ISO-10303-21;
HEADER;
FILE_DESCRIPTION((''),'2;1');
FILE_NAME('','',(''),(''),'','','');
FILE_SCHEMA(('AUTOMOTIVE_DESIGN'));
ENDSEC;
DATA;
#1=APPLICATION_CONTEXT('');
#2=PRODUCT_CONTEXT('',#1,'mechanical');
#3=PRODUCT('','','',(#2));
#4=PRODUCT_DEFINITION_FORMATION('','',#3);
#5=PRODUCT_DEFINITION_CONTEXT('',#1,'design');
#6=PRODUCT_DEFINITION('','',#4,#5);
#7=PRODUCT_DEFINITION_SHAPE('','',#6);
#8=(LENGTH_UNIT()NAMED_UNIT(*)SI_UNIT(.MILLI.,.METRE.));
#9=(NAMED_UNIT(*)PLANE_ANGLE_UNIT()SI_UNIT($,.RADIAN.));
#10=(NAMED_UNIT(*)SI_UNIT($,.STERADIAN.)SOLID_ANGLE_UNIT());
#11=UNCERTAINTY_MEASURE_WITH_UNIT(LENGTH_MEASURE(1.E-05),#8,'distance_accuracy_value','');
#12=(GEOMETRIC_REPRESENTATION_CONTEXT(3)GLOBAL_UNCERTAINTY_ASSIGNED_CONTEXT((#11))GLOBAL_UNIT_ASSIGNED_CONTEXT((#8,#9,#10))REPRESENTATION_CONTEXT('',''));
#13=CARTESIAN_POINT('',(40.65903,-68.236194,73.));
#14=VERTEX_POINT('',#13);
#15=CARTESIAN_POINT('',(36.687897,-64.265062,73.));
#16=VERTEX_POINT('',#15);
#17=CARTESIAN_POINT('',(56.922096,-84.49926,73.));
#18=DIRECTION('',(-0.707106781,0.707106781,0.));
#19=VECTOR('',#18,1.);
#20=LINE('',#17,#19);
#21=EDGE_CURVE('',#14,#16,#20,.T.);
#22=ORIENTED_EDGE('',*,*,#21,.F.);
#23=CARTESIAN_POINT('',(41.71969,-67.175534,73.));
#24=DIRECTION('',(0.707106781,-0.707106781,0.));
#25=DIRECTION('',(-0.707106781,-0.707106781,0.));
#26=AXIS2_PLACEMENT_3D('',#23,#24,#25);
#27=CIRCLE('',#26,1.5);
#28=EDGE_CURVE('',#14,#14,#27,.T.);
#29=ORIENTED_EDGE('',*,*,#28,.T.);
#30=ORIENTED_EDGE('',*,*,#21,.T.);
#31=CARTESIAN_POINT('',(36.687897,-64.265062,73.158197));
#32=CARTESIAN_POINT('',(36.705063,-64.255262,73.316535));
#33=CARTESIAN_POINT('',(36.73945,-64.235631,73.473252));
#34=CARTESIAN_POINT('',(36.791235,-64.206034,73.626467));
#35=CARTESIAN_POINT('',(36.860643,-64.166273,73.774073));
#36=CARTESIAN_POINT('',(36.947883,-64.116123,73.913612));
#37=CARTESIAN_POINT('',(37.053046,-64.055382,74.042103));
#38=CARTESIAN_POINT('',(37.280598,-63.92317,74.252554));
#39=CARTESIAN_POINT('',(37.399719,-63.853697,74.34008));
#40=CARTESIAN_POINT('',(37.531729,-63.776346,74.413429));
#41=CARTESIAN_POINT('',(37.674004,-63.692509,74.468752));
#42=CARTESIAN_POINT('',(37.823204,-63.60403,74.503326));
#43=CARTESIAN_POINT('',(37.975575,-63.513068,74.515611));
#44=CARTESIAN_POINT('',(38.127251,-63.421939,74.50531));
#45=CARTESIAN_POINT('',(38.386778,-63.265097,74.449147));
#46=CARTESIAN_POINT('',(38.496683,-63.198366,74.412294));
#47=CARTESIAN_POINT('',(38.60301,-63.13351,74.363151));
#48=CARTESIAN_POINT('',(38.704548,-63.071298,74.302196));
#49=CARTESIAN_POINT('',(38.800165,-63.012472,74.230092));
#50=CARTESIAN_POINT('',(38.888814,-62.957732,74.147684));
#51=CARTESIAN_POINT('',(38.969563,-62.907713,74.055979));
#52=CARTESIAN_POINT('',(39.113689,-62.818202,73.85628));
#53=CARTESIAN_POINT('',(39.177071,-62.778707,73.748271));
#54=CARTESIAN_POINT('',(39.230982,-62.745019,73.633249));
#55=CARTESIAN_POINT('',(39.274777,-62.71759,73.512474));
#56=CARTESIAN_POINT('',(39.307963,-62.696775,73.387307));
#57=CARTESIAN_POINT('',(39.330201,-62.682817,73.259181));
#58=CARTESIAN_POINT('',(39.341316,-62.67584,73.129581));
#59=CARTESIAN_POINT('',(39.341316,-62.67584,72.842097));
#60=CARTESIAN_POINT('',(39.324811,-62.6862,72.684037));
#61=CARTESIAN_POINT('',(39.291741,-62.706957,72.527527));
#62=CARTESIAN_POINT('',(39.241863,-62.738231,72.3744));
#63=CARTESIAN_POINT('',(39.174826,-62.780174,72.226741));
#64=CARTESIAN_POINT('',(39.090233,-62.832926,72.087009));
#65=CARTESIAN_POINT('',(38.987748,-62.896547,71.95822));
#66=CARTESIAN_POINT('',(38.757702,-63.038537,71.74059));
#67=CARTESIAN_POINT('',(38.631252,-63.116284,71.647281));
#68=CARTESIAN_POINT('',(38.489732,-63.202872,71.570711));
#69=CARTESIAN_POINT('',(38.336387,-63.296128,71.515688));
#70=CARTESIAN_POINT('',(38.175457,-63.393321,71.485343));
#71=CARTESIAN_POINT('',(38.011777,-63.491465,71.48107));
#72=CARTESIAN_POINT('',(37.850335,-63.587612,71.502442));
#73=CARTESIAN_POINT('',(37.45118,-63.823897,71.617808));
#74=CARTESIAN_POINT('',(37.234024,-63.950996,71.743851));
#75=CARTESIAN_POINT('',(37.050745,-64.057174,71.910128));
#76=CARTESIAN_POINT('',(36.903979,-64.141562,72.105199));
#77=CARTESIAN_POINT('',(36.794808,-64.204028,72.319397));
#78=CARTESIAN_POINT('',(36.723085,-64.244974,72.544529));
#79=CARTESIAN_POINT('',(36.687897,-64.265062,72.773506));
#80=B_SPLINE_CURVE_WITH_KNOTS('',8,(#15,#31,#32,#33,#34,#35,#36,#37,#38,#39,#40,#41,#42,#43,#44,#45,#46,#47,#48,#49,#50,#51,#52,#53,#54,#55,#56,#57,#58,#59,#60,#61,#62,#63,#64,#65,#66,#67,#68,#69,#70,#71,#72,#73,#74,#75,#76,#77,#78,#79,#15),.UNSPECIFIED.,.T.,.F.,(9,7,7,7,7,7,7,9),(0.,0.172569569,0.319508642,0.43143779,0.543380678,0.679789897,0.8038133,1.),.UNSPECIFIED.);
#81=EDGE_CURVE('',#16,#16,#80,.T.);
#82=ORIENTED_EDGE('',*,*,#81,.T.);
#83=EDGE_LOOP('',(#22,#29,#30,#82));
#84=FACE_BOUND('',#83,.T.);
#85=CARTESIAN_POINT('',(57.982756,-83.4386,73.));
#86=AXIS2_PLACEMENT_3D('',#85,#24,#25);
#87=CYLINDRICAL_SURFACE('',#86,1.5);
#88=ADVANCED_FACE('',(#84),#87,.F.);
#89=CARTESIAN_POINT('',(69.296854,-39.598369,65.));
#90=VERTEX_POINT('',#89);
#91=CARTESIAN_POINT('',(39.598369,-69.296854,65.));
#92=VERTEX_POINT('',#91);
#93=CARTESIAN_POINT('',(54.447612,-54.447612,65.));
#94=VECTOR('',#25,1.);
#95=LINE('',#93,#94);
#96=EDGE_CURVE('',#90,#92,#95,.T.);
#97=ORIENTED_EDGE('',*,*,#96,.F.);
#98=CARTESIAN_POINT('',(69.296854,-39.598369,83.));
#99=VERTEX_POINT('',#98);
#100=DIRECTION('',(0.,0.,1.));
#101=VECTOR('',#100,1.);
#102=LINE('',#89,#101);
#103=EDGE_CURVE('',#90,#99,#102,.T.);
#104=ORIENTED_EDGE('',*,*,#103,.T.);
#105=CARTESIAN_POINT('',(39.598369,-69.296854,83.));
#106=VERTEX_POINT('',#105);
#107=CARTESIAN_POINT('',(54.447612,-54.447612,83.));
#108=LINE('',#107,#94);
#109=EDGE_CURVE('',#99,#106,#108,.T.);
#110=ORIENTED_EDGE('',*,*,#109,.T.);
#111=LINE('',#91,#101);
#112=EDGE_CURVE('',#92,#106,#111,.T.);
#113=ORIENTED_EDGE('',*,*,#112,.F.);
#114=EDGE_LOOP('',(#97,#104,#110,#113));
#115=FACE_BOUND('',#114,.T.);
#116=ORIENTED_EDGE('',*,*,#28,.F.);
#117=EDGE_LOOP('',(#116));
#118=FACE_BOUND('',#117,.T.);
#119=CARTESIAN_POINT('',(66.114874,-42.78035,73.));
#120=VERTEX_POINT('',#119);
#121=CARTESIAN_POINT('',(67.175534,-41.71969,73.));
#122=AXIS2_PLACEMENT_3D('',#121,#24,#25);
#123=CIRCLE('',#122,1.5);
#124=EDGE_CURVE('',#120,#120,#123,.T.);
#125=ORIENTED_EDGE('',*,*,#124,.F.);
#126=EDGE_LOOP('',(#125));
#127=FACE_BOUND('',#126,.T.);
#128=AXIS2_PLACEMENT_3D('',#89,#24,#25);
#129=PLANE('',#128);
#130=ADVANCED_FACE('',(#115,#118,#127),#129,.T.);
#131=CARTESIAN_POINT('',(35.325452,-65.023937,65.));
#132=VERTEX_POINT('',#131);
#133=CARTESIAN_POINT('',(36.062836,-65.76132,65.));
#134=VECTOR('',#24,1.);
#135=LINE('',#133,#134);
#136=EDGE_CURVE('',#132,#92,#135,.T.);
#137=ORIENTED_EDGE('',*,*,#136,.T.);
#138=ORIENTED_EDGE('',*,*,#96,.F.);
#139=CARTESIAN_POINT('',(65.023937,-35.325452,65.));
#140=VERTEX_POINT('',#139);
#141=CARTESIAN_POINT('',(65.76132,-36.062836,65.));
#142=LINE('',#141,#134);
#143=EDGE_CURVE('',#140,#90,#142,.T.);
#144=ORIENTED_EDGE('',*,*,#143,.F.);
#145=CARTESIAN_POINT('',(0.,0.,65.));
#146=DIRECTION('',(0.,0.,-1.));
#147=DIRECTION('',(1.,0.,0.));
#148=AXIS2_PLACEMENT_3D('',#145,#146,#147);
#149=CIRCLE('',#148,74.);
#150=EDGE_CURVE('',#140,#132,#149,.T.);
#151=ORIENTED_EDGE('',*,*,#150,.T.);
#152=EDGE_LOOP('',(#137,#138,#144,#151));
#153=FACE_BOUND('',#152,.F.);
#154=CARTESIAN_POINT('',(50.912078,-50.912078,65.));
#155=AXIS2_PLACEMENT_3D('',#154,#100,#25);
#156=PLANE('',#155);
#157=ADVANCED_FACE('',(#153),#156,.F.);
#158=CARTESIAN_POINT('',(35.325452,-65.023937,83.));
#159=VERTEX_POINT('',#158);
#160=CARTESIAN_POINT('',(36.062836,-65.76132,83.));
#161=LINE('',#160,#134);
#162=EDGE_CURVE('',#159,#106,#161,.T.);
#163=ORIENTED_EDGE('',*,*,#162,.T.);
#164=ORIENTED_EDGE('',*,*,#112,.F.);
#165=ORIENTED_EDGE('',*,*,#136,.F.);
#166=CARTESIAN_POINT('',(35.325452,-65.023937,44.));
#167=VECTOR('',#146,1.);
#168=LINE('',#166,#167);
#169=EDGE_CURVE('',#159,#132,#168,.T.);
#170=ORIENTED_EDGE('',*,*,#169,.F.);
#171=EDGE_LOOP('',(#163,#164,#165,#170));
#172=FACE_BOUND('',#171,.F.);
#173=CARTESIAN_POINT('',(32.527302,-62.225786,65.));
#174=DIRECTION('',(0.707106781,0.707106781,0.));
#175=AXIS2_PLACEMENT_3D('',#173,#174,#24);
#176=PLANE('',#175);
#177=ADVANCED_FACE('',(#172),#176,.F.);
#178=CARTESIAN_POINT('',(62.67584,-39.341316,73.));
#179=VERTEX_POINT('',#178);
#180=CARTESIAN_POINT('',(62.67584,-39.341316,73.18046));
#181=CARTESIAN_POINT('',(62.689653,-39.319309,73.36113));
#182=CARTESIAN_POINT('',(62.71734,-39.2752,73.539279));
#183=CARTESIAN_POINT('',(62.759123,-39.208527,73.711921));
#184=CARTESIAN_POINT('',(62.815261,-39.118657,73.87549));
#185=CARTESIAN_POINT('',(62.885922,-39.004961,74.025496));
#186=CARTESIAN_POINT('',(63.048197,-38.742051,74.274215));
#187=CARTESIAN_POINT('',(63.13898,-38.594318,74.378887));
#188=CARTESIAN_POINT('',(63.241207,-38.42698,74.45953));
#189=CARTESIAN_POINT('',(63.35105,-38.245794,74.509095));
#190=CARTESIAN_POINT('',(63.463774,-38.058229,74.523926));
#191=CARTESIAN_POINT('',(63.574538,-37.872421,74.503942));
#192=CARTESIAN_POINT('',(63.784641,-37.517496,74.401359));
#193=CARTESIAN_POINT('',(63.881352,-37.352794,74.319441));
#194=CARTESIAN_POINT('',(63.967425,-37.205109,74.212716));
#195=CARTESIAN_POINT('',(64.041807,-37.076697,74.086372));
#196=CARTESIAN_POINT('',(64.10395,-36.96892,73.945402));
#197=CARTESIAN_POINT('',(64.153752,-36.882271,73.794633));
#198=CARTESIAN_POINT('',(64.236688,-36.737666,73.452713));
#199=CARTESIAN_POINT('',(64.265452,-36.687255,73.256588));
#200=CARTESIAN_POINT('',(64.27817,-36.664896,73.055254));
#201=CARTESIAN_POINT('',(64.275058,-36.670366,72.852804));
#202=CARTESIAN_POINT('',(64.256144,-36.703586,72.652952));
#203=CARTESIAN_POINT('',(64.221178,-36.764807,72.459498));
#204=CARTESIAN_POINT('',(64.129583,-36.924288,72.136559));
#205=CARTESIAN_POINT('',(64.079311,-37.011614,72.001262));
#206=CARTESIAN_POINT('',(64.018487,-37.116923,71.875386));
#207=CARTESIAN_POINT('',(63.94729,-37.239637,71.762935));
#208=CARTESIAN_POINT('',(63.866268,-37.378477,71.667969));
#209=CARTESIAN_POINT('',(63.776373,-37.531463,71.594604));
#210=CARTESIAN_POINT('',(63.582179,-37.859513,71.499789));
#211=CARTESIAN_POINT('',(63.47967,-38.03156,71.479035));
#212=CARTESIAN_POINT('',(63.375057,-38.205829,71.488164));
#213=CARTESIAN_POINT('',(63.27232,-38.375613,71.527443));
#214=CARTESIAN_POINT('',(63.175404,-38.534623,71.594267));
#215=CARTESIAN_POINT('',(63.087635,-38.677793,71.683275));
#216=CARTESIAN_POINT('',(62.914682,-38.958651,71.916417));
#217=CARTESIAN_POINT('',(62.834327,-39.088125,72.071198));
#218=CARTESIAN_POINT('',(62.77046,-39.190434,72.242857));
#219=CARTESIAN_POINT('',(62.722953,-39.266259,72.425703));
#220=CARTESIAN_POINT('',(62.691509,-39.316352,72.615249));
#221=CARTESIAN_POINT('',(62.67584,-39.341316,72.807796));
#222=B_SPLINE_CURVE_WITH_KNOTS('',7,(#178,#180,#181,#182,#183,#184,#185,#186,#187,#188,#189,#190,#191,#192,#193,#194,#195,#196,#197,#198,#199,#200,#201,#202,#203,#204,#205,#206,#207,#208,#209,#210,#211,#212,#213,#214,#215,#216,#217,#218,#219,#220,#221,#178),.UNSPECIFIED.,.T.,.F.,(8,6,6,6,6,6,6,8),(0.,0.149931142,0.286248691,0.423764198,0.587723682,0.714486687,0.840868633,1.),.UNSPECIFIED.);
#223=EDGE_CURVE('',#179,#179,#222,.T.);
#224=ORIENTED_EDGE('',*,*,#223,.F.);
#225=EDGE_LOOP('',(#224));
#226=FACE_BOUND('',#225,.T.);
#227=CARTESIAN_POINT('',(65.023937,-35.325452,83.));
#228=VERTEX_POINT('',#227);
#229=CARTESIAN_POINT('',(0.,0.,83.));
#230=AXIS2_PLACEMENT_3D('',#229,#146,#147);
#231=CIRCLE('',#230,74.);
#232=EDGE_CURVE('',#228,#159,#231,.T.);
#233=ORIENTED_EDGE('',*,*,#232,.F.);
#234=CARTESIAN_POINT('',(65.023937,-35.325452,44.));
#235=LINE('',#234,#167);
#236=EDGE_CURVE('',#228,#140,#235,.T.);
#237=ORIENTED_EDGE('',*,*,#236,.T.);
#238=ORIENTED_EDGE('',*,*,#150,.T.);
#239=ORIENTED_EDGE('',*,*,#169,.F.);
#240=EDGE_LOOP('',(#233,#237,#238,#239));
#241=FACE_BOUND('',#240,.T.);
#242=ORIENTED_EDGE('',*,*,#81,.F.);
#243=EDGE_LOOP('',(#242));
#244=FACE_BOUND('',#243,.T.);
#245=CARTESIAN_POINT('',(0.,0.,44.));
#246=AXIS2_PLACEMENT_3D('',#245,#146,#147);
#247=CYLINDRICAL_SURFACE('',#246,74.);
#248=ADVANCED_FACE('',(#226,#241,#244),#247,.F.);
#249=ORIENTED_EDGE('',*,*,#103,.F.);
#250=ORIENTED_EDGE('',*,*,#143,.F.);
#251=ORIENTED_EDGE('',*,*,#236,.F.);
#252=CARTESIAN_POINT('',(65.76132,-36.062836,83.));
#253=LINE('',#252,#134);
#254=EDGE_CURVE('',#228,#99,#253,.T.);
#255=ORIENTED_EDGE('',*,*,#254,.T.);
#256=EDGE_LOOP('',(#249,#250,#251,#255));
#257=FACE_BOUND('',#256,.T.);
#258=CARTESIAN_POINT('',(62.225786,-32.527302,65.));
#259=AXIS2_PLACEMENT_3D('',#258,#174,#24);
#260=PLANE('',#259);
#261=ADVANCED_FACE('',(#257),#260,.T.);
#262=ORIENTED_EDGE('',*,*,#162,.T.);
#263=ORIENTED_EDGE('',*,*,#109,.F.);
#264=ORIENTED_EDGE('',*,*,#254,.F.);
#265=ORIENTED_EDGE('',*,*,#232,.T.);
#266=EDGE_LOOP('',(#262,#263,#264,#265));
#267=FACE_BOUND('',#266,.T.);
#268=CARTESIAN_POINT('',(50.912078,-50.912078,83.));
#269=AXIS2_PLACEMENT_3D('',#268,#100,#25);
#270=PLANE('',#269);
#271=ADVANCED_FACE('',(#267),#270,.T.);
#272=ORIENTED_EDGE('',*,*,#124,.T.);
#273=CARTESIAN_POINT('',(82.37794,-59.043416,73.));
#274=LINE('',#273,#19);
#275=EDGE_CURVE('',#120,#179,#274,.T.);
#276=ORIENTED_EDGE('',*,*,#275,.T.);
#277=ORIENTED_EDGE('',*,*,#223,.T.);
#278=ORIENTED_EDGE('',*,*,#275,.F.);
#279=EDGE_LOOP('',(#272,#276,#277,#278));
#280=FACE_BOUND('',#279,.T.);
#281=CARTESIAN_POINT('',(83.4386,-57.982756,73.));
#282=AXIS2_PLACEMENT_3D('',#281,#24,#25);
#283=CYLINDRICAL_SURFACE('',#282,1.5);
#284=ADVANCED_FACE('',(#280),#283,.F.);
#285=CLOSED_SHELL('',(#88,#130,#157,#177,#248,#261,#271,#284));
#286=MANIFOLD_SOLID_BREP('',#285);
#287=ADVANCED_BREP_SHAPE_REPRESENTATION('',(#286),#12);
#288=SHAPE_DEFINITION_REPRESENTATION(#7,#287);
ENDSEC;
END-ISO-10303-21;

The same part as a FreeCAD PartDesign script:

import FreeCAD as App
import Part
import Sketcher
from FreeCAD import Vector


def add_polygon(sketch, points):
    """Adds a closed chain of lines whose ends are joined by coincident constraints."""
    first, n = sketch.GeometryCount, len(points)
    for a, b in zip(points, points[1:] + points[:1]):
        sketch.addGeometry(Part.LineSegment(App.Vector(*a, 0), App.Vector(*b, 0)), False)
    for i in range(n):
        sketch.addConstraint(Sketcher.Constraint("Coincident", first + i, 2, first + (i + 1) % n, 1))

doc = App.newDocument("Part")
body = doc.addObject("PartDesign::Body", "Body")

# Sketch on XY plane
sketch1 = body.newObject("Sketcher::SketchObject", "Sketch")
sketch1.AttachmentSupport = (doc.getObject("XY_Plane"), [""])
sketch1.MapMode = "FlatFace"
sketch1.AttachmentOffset = App.Placement(Vector(0, 0, -80), App.Rotation())
sketch1.addGeometry(Part.Circle(Vector(-24, 73, 0), Vector(0, 0, 1), 1.5), False)
sketch1.addConstraint(Sketcher.Constraint("Diameter", 0, 3.0))
sketch1.addConstraint(Sketcher.Constraint("DistanceX", 0, 3, -1, 1, 24.0))
sketch1.addConstraint(Sketcher.Constraint("DistanceY", -1, 1, 0, 3, 73.0))
pad1 = body.newObject("PartDesign::Pad", "Pad")
pad1.Profile = sketch1
pad1.Length = 60
body2 = doc.addObject("PartDesign::Body", "Body001")

# Sketch on XY plane
sketch2 = body2.newObject("Sketcher::SketchObject", "Sketch001")
sketch2.AttachmentSupport = (doc.getObject("XY_Plane001"), [""])
sketch2.MapMode = "FlatFace"
sketch2.AttachmentOffset = App.Placement(Vector(0, 0, -80), App.Rotation())
sketch2.addGeometry(Part.Circle(Vector(-15, 135, 0), Vector(0, 0, 1), 1.5), False)
sketch2.addConstraint(Sketcher.Constraint("Diameter", 0, 3.0))
sketch2.addConstraint(Sketcher.Constraint("DistanceX", 0, 3, -1, 1, 15.0))
sketch2.addConstraint(Sketcher.Constraint("DistanceY", -1, 1, 0, 3, 135.0))
pad2 = body2.newObject("PartDesign::Pad", "Pad001")
pad2.Profile = sketch2
pad2.Length = 60
body3 = doc.addObject("PartDesign::Body", "Body002")

# Sketch on XY plane
sketch3 = body3.newObject("Sketcher::SketchObject", "Sketch002")
sketch3.AttachmentSupport = (doc.getObject("XY_Plane002"), [""])
sketch3.MapMode = "FlatFace"
sketch3.AttachmentOffset = App.Placement(Vector(0, 0, -80), App.Rotation())
sketch3.addGeometry(Part.Circle(Vector(15, 135, 0), Vector(0, 0, 1), 1.5), False)
sketch3.addConstraint(Sketcher.Constraint("Diameter", 0, 3.0))
sketch3.addConstraint(Sketcher.Constraint("DistanceX", -1, 1, 0, 3, 15.0))
sketch3.addConstraint(Sketcher.Constraint("DistanceY", -1, 1, 0, 3, 135.0))
pad3 = body3.newObject("PartDesign::Pad", "Pad002")
pad3.Profile = sketch3
pad3.Length = 60
body4 = doc.addObject("PartDesign::Body", "Body003")
body4.AllowCompound = True

# Sketch on XY plane
sketch4 = body4.newObject("Sketcher::SketchObject", "Sketch003")
sketch4.AttachmentSupport = (doc.getObject("XY_Plane003"), [""])
sketch4.MapMode = "FlatFace"
sketch4.AttachmentOffset = App.Placement(Vector(0, 0, -80), App.Rotation())
sketch4.addGeometry(Part.Circle(Vector(24, 73, 0), Vector(0, 0, 1), 1.5), False)
sketch4.addConstraint(Sketcher.Constraint("Diameter", 0, 3.0))
sketch4.addConstraint(Sketcher.Constraint("DistanceX", -1, 1, 0, 3, 24.0))
sketch4.addConstraint(Sketcher.Constraint("DistanceY", -1, 1, 0, 3, 73.0))
pad4 = body4.newObject("PartDesign::Pad", "Pad003")
pad4.Profile = sketch4
pad4.Length = 60
doc.recompute()

boolean = body4.newObject("PartDesign::Boolean", "Boolean")
boolean.Type = "Fuse"
boolean.addObjects([body])
doc.recompute()

boolean2 = body4.newObject("PartDesign::Boolean", "Boolean001")
boolean2.Type = "Fuse"
boolean2.addObjects([body2])
doc.recompute()

boolean3 = body4.newObject("PartDesign::Boolean", "Boolean002")
boolean3.Type = "Fuse"
boolean3.addObjects([body3])
body5 = doc.addObject("PartDesign::Body", "Body004")
body5.AllowCompound = True
doc.recompute()

body4.Placement = App.Placement(Vector(0, 0, 100), App.Rotation(Vector(0, 0, 1), 225))
boolean4 = body5.newObject("PartDesign::Boolean", "Boolean003")
boolean4.Type = "Fuse"
boolean4.addObjects([body4])
body6 = doc.addObject("PartDesign::Body", "Body005")

# Sketch on XZ plane
sketch5 = body6.newObject("Sketcher::SketchObject", "Sketch004")
sketch5.AttachmentSupport = (doc.getObject("XZ_Plane005"), [""])
sketch5.MapMode = "FlatFace"
sketch5.AttachmentOffset = App.Placement(Vector(0, 0, -100), App.Rotation())
sketch5.addGeometry(Part.Circle(Vector(18, 72, 0), Vector(0, 0, 1), 1.5), False)
sketch5.addConstraint(Sketcher.Constraint("Diameter", 0, 3.0))
sketch5.addConstraint(Sketcher.Constraint("DistanceX", -1, 1, 0, 3, 18.0))
sketch5.addConstraint(Sketcher.Constraint("DistanceY", -1, 1, 0, 3, 72.0))
pad5 = body6.newObject("PartDesign::Pad", "Pad004")
pad5.Profile = sketch5
pad5.Length = 50
body7 = doc.addObject("PartDesign::Body", "Body006")
doc.recompute()

body6.Placement = App.Placement(Vector(0, 0, 0), App.Rotation(Vector(0, 0, 1), 225))
boolean5 = body7.newObject("PartDesign::Boolean", "Boolean004")
boolean5.Type = "Fuse"
boolean5.addObjects([body6])
body8 = doc.addObject("PartDesign::Body", "Body007")

# Sketch on XZ plane
sketch6 = body8.newObject("Sketcher::SketchObject", "Sketch005")
sketch6.AttachmentSupport = (doc.getObject("XZ_Plane007"), [""])
sketch6.MapMode = "FlatFace"
sketch6.AttachmentOffset = App.Placement(Vector(0, 0, -100), App.Rotation())
sketch6.addGeometry(Part.Circle(Vector(-18, 72, 0), Vector(0, 0, 1), 1.5), False)
sketch6.addConstraint(Sketcher.Constraint("Diameter", 0, 3.0))
sketch6.addConstraint(Sketcher.Constraint("DistanceX", 0, 3, -1, 1, 18.0))
sketch6.addConstraint(Sketcher.Constraint("DistanceY", -1, 1, 0, 3, 72.0))
pad6 = body8.newObject("PartDesign::Pad", "Pad005")
pad6.Profile = sketch6
pad6.Length = 50
body9 = doc.addObject("PartDesign::Body", "Body008")
body9.AllowCompound = True
doc.recompute()

body8.Placement = App.Placement(Vector(0, 0, 0), App.Rotation(Vector(0, 0, 1), 225))
boolean6 = body9.newObject("PartDesign::Boolean", "Boolean005")
boolean6.Type = "Fuse"
boolean6.addObjects([body8])
doc.recompute()

boolean7 = body9.newObject("PartDesign::Boolean", "Boolean006")
boolean7.Type = "Fuse"
boolean7.addObjects([body7])
body10 = doc.addObject("PartDesign::Body", "Body009")
body10.AllowCompound = True
doc.recompute()

body9.Placement = App.Placement(Vector(0, 0, 1), App.Rotation(Vector(0, 0, 1), 0))
boolean8 = body10.newObject("PartDesign::Boolean", "Boolean007")
boolean8.Type = "Fuse"
boolean8.addObjects([body9])
body11 = doc.addObject("PartDesign::Body", "Body010")

# Sketch on XY plane
sketch7 = body11.newObject("Sketcher::SketchObject", "Sketch006")
sketch7.AttachmentSupport = (doc.getObject("XY_Plane010"), [""])
sketch7.MapMode = "FlatFace"
sketch7.AttachmentOffset = App.Placement(Vector(0, 0, 44), App.Rotation())
sketch7.addGeometry(Part.Circle(Vector(0, 0, 0), Vector(0, 0, 1), 74), False)
sketch7.addConstraint(Sketcher.Constraint("Coincident", 0, 3, -1, 1))
sketch7.addConstraint(Sketcher.Constraint("Diameter", 0, 148.0))
pad7 = body11.newObject("PartDesign::Pad", "Pad006")
pad7.Profile = sketch7
pad7.Length = 40
body12 = doc.addObject("PartDesign::Body", "Body011")

# Sketch on XY plane
sketch8 = body12.newObject("Sketcher::SketchObject", "Sketch007")
sketch8.AttachmentSupport = (doc.getObject("XY_Plane011"), [""])
sketch8.MapMode = "FlatFace"
sketch8.AttachmentOffset = App.Placement(Vector(0, 0, 22), App.Rotation())
add_polygon(sketch8, [(-21, -13), (-21, -23), (21, -23), (21, -13)])  # lines 0-3
sketch8.addConstraint(Sketcher.Constraint("Vertical", 0))
sketch8.addConstraint(Sketcher.Constraint("Horizontal", 1))
sketch8.addConstraint(Sketcher.Constraint("Vertical", 2))
sketch8.addConstraint(Sketcher.Constraint("Horizontal", 3))
sketch8.addConstraint(Sketcher.Constraint("DistanceX", 1, 1, 1, 2, 42.0))
sketch8.addConstraint(Sketcher.Constraint("DistanceY", 0, 2, 0, 1, 10.0))
sketch8.addConstraint(Sketcher.Constraint("DistanceX", 0, 2, -1, 1, 21.0))
sketch8.addConstraint(Sketcher.Constraint("DistanceY", 0, 2, -1, 1, 23.0))
pad8 = body12.newObject("PartDesign::Pad", "Pad007")
pad8.Profile = sketch8
pad8.Length = 18
body13 = doc.addObject("PartDesign::Body", "Body012")
doc.recompute()

body12.Placement = App.Placement(Vector(63.64, -63.64, 43), App.Rotation(Vector(0, 0, 1), 225))
boolean9 = body13.newObject("PartDesign::Boolean", "Boolean008")
boolean9.Type = "Fuse"
boolean9.addObjects([body12])
doc.recompute()

boolean10 = body13.newObject("PartDesign::Boolean", "Boolean009")
boolean10.Type = "Cut"
boolean10.addObjects([body11])
doc.recompute()

boolean11 = body13.newObject("PartDesign::Boolean", "Boolean010")
boolean11.Type = "Cut"
boolean11.addObjects([body10])
doc.recompute()

boolean12 = body13.newObject("PartDesign::Boolean", "Boolean011")
boolean12.Type = "Cut"
boolean12.addObjects([body5])

doc.recompute()
